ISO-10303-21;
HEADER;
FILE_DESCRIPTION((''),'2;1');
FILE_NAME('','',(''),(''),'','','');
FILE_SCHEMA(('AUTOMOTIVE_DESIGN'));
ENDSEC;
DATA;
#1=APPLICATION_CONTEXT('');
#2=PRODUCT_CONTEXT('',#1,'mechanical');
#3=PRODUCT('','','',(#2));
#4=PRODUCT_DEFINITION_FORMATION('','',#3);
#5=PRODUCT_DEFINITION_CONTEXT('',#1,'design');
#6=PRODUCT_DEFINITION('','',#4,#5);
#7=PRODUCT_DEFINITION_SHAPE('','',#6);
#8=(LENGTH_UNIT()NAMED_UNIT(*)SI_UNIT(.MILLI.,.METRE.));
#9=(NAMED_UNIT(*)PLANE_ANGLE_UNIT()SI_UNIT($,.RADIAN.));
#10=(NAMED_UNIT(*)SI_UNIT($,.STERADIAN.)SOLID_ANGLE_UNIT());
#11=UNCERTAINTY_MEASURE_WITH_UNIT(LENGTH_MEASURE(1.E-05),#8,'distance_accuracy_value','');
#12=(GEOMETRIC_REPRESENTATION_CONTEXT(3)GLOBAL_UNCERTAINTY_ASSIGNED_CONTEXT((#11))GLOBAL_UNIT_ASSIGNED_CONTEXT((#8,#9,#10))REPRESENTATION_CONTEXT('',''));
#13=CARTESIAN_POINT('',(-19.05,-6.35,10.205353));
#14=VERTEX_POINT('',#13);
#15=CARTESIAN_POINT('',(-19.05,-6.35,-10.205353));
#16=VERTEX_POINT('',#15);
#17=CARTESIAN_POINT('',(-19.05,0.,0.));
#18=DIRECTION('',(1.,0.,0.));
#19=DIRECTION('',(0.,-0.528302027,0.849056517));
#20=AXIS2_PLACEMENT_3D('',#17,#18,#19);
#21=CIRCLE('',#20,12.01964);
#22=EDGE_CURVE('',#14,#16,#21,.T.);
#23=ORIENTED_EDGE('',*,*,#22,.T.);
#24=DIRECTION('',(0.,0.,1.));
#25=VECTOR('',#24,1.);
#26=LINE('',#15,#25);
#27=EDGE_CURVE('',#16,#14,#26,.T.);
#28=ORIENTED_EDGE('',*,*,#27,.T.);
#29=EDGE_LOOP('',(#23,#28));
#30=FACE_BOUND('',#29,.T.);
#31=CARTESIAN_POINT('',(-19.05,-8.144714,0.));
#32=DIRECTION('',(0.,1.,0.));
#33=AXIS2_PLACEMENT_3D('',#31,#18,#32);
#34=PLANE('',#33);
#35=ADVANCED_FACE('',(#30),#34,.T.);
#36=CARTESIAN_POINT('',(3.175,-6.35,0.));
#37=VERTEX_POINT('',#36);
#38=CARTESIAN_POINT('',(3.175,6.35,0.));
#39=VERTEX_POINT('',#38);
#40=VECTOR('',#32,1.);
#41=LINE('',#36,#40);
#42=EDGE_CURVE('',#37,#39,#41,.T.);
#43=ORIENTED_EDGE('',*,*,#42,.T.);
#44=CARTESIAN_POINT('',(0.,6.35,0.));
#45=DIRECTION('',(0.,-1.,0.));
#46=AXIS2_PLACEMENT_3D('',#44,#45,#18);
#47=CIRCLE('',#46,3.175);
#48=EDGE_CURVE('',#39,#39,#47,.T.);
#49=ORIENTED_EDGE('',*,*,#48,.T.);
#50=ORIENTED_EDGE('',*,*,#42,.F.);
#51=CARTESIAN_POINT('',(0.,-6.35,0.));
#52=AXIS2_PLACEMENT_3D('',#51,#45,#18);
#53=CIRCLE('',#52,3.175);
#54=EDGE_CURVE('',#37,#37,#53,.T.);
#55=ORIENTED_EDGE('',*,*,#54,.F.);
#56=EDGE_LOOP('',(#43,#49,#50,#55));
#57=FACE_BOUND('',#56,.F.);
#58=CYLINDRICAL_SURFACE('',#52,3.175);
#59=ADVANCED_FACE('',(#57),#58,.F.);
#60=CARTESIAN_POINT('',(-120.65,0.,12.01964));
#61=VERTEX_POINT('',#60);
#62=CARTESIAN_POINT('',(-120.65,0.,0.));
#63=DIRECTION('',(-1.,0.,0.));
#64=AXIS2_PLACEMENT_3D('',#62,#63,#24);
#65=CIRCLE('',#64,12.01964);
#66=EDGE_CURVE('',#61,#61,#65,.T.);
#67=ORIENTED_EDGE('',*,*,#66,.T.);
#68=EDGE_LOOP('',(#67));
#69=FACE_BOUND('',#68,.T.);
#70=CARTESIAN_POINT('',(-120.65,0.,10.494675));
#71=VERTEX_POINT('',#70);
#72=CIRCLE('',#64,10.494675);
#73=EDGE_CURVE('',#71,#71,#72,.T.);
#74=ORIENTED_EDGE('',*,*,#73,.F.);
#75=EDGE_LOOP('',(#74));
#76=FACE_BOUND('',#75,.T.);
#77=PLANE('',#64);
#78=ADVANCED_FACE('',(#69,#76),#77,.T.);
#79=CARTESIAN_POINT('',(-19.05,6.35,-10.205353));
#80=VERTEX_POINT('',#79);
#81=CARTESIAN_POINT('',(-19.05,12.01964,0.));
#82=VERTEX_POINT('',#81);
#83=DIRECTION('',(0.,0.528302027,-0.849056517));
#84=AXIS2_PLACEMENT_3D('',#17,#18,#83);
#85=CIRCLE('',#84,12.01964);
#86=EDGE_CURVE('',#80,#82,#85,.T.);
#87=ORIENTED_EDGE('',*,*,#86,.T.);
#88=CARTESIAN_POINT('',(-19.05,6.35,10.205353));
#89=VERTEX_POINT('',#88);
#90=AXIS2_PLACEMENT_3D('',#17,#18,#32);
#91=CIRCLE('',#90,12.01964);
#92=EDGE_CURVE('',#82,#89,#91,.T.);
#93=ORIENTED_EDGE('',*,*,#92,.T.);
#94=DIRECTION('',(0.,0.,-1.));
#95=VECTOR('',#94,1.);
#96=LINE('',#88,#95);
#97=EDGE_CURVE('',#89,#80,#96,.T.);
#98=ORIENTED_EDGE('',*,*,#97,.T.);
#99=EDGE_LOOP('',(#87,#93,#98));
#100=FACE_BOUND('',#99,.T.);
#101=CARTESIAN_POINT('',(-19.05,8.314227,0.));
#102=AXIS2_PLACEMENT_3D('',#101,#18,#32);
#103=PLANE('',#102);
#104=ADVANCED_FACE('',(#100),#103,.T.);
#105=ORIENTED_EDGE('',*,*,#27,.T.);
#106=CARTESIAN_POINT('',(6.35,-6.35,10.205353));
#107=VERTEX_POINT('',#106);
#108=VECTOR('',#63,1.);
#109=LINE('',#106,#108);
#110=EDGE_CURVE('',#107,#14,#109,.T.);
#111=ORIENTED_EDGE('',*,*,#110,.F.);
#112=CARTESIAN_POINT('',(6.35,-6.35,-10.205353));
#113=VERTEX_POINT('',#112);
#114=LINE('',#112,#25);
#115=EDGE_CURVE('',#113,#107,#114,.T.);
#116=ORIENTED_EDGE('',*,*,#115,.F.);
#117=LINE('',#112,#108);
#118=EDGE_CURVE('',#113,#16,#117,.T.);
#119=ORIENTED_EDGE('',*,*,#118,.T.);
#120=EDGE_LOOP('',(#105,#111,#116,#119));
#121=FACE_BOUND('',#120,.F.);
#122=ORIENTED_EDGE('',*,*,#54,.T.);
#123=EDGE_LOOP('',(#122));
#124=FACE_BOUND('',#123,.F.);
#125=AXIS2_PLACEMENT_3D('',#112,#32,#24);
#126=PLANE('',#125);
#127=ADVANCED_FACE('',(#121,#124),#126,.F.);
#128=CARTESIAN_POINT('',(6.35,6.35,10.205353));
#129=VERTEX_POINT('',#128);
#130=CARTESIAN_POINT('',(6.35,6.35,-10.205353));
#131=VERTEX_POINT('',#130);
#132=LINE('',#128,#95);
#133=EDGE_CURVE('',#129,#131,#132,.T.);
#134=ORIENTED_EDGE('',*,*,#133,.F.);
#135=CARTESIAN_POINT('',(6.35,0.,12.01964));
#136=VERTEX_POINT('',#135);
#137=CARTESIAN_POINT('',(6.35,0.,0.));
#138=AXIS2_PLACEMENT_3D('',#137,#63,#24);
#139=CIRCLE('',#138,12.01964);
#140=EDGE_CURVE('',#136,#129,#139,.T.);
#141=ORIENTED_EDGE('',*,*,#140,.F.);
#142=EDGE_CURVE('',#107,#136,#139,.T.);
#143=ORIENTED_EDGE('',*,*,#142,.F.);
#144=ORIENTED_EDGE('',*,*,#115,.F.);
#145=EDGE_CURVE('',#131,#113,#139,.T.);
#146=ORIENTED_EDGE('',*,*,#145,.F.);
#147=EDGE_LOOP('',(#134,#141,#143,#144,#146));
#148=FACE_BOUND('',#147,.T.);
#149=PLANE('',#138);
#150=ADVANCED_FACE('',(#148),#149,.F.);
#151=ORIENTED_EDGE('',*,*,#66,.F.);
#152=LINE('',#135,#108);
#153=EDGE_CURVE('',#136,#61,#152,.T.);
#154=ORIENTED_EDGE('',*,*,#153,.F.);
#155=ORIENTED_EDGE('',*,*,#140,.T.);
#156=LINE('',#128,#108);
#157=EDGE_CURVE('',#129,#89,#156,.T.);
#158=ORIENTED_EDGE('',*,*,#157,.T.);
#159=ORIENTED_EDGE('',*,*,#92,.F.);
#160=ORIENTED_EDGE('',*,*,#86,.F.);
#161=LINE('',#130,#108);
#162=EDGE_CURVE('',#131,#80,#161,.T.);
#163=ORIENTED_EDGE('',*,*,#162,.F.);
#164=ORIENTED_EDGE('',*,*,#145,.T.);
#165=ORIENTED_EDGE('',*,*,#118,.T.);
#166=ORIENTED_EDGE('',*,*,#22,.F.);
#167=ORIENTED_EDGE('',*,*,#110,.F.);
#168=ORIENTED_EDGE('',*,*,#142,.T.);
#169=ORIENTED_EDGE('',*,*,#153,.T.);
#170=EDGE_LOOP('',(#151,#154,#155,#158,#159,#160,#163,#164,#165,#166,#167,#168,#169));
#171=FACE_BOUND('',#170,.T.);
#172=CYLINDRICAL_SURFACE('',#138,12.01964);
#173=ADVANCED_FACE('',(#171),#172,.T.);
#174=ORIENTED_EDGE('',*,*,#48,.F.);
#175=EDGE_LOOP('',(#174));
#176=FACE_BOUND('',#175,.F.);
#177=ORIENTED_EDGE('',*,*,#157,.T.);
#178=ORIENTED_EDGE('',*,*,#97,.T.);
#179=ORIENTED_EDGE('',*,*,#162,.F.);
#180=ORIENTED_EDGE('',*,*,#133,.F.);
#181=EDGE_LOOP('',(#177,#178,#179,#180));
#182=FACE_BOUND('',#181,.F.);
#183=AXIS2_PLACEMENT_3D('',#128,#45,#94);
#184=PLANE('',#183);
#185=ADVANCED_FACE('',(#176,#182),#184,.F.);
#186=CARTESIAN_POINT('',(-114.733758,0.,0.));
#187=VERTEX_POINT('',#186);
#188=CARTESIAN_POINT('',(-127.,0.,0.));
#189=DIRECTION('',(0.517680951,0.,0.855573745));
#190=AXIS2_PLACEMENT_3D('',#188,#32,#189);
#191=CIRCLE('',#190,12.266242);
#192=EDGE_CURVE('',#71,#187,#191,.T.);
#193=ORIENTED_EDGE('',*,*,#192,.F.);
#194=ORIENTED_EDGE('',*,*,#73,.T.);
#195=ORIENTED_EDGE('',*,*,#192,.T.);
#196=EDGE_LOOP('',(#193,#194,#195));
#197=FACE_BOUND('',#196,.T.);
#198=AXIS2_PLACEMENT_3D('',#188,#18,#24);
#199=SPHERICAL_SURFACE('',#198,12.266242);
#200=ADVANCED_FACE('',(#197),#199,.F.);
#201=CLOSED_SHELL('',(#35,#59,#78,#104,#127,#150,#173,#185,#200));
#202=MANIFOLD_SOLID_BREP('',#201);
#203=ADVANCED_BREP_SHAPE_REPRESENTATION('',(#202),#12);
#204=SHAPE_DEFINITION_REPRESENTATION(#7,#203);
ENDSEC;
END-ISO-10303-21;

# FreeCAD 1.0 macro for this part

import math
import FreeCAD as App
import Part
import Sketcher
from FreeCAD import Vector
Q = App.Units.Quantity

doc = App.newDocument("Part")
params = doc.addObject("Spreadsheet::Sheet", "Params")
for row, (alias, value) in enumerate([
    ("sketch1_width", "5 in"),
    ("revolution_angle", "360 deg"),
    ("pocket1_length", "1 in"),
    ("sketch3_diameter", "0.25 in"),
], start=1):
    params.set(f"A{row}", alias)
    params.set(f"B{row}", "=" + value)
    params.setAlias(f"B{row}", alias)

body = doc.addObject("PartDesign::Body", "Body")

sketch1 = doc.addObject("Sketcher::SketchObject", "Sketch")
body.addObject(sketch1)
sketch1.AttachmentSupport = (doc.XZ_Plane, [""])
sketch1.MapMode = "FlatFace"
sketch1.addGeometry(Part.LineSegment(Vector(6.3, 12, 0), Vector(-120.7, 12, 0)), False)
sketch1.addGeometry(Part.LineSegment(Vector(-120.7, 12, 0), Vector(-120.7, 10.5, 0)), False)
sketch1.addGeometry(Part.ArcOfCircle(Part.Circle(Vector(-127, 0, 0), Vector(0, 0, 1), 12.3), math.radians(0), math.radians(59)), False)
sketch1.addGeometry(Part.LineSegment(Vector(-114.7, 0, 0), Vector(6.3, 0, 0)), False)
sketch1.addGeometry(Part.LineSegment(Vector(6.3, 0, 0), Vector(6.3, 12, 0)), False)
sketch1.addConstraint(Sketcher.Constraint("Coincident", 0, 2, 1, 1))
sketch1.addConstraint(Sketcher.Constraint("Coincident", 1, 2, 2, 2))
sketch1.addConstraint(Sketcher.Constraint("Coincident", 2, 1, 3, 1))
sketch1.addConstraint(Sketcher.Constraint("Coincident", 3, 2, 4, 1))
sketch1.addConstraint(Sketcher.Constraint("Coincident", 4, 2, 0, 1))
sketch1.addConstraint(Sketcher.Constraint("Horizontal", 0))
sketch1.addConstraint(Sketcher.Constraint("Vertical", 1))
sketch1.addConstraint(Sketcher.Constraint("Horizontal", 3))
sketch1.addConstraint(Sketcher.Constraint("Vertical", 4))
sketch1.addConstraint(Sketcher.Constraint("PointOnObject", 2, 3, -1))
sketch1.addConstraint(Sketcher.Constraint("PointOnObject", 2, 1, -1))
sketch1.addConstraint(Sketcher.Constraint("DistanceX", 0, 2, 0, 1, Q("5 in")))
sketch1.addConstraint(Sketcher.Constraint("DistanceX", 2, 3, -1, 1, Q("5 in")))
sketch1.addConstraint(Sketcher.Constraint("DistanceX", 0, 2, -1, 1, Q("4.75 in")))
sketch1.addConstraint(Sketcher.Constraint("Radius", 2, 12.266242))
sketch1.addConstraint(Sketcher.Constraint("DistanceY", 4, 1, 4, 2, 12.01964))
sketch1.setExpression("Constraints[11]", "Params.sketch1_width")
revolution = doc.addObject("PartDesign::Revolution", "Revolution")
body.addObject(revolution)
revolution.Profile = sketch1
revolution.ReferenceAxis = (sketch1, ["H_Axis"])
revolution.setExpression("Angle", "Params.revolution_angle")

sketch2 = doc.addObject("Sketcher::SketchObject", "Sketch001")
body.addObject(sketch2)
sketch2.AttachmentSupport = (doc.YZ_Plane, [""])
sketch2.MapMode = "FlatFace"
sketch2.AttachmentOffset = App.Placement(Vector(0, 0, 0.25 * 25.4), App.Rotation())
sketch2.addGeometry(Part.LineSegment(Vector(-6, -10, 0), Vector(-6, 10, 0)), False)
sketch2.addGeometry(Part.ArcOfCircle(Part.Circle(Vector(0, 0, 0), Vector(0, 0, 1), 12), math.radians(122), math.radians(238)), False)
sketch2.addGeometry(Part.ArcOfCircle(Part.Circle(Vector(0, 0, 0), Vector(0, 0, 1), 12), math.radians(0), math.radians(58)), False)
sketch2.addGeometry(Part.LineSegment(Vector(6, 10, 0), Vector(6, -10, 0)), False)
sketch2.addGeometry(Part.ArcOfCircle(Part.Circle(Vector(0, 0, 0), Vector(0, 0, 1), 12), math.radians(-58), math.radians(0)), False)
sketch2.addConstraint(Sketcher.Constraint("Coincident", 0, 1, 1, 2))
sketch2.addConstraint(Sketcher.Constraint("Coincident", 1, 1, 0, 2))
sketch2.addConstraint(Sketcher.Constraint("Coincident", 2, 2, 3, 1))
sketch2.addConstraint(Sketcher.Constraint("Coincident", 3, 2, 4, 1))
sketch2.addConstraint(Sketcher.Constraint("Tangent", 4, 2, 2, 1))
sketch2.addConstraint(Sketcher.Constraint("Vertical", 0))
sketch2.addConstraint(Sketcher.Constraint("Vertical", 3))
sketch2.addConstraint(Sketcher.Constraint("Coincident", 1, 3, -1, 1))
sketch2.addConstraint(Sketcher.Constraint("Coincident", 2, 3, -1, 1))
sketch2.addConstraint(Sketcher.Constraint("Equal", 1, 2))
sketch2.addConstraint(Sketcher.Constraint("Equal", 2, 4))
sketch2.addConstraint(Sketcher.Constraint("PointOnObject", 4, 2, -1))
sketch2.addConstraint(Sketcher.Constraint("Horizontal", 1, 1, 2, 2))
sketch2.addConstraint(Sketcher.Constraint("DistanceX", 1, 1, 2, 2, Q("0.5 in")))
sketch2.addConstraint(Sketcher.Constraint("Radius", 1, 12.01964))
pocket1 = doc.addObject("PartDesign::Pocket", "Pocket")
body.addObject(pocket1)
pocket1.Profile = sketch2
pocket1.setExpression("Length", "Params.pocket1_length")

sketch3 = doc.addObject("Sketcher::SketchObject", "Sketch002")
body.addObject(sketch3)
sketch3.AttachmentSupport = (doc.XZ_Plane, [""])
sketch3.MapMode = "FlatFace"
sketch3.AttachmentOffset = App.Placement(Vector(0, 0, 0.25 * 25.4), App.Rotation())
sketch3.addGeometry(Part.Circle(Vector(0, 0, 0), Vector(0, 0, 1), 3.2), False)
sketch3.addConstraint(Sketcher.Constraint("Coincident", 0, 3, -1, 1))
sketch3.addConstraint(Sketcher.Constraint("Diameter", 0, Q("0.25 in")))
sketch3.setExpression("Constraints[1]", "Params.sketch3_diameter")
pocket2 = doc.addObject("PartDesign::Pocket", "Pocket001")
body.addObject(pocket2)
pocket2.Profile = sketch3
pocket2.Type = "ThroughAll"

doc.recompute()
